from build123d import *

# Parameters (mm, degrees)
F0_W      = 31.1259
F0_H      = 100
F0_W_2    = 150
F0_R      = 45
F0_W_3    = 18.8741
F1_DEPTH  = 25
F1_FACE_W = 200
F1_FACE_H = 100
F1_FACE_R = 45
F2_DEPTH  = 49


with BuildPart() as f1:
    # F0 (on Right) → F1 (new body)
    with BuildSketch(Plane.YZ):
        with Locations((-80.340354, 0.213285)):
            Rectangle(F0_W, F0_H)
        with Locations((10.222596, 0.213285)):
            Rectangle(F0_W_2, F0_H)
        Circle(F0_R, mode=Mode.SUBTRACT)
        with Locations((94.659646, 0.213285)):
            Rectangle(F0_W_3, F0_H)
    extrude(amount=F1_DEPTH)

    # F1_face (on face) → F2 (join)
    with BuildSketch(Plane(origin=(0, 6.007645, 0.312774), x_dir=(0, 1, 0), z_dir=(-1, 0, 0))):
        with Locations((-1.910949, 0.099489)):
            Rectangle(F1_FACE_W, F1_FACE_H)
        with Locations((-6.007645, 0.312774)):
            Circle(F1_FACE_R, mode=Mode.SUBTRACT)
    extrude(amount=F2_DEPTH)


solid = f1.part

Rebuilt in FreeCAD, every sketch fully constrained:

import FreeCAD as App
import Part
import Sketcher
Q = App.Units.Quantity


def add_polygon(sketch, points):
    """Adds a closed chain of lines whose ends are joined by coincident constraints."""
    first, n = sketch.GeometryCount, len(points)
    for a, b in zip(points, points[1:] + points[:1]):
        sketch.addGeometry(Part.LineSegment(App.Vector(*a, 0), App.Vector(*b, 0)), False)
    for i in range(n):
        sketch.addConstraint(Sketcher.Constraint("Coincident", first + i, 2, first + (i + 1) % n, 1))

doc = App.newDocument("Part")
body = doc.addObject("PartDesign::Body", "Body")

sketch1 = body.newObject("Sketcher::SketchObject", "Sketch")
sketch1.AttachmentSupport = (doc.getObject("YZ_Plane"), [""])
sketch1.MapMode = "FlatFace"
add_polygon(sketch1, [(-96, 50), (-96, -50), (104, -50), (104, 50)])
sketch1.addGeometry(Part.Circle(App.Vector(0, 0, 0), App.Vector(0, 0, 1), 45), False)
sketch1.addConstraint([
    Sketcher.Constraint("Vertical", 0),
    Sketcher.Constraint("Horizontal", 1),
    Sketcher.Constraint("Vertical", 2),
    Sketcher.Constraint("Horizontal", 3),
    Sketcher.Constraint("Coincident", 4, 3, -1, 1),
    Sketcher.Constraint("Diameter", 4, Q("90 mm")),
    Sketcher.Constraint("DistanceX", 1, 1, 1, 2, Q("200 mm")),
    Sketcher.Constraint("DistanceY", 0, 2, 0, 1, Q("100 mm")),
    Sketcher.Constraint("DistanceX", 0, 2, -1, 1, Q("95.903304 mm")),
    Sketcher.Constraint("DistanceY", 0, 2, -1, 1, Q("49.786715 mm")),
])
pad1 = body.newObject("PartDesign::Pad", "Pad")
pad1.Profile = sketch1
pad1.Length = 25

sketch2 = body.newObject("Sketcher::SketchObject", "Sketch001")
sketch2.AttachmentSupport = (doc.getObject("YZ_Plane"), [""])
sketch2.MapMode = "FlatFace"
add_polygon(sketch2, [(-96, -50), (-96, 50), (104, 50), (104, -50)])
sketch2.addGeometry(Part.Circle(App.Vector(0, 0, 0), App.Vector(0, 0, 1), 45), False)
sketch2.addConstraint([
    Sketcher.Constraint("Vertical", 0),
    Sketcher.Constraint("Horizontal", 1),
    Sketcher.Constraint("Vertical", 2),
    Sketcher.Constraint("Horizontal", 3),
    Sketcher.Constraint("Coincident", 4, 3, -1, 1),
    Sketcher.Constraint("Diameter", 4, Q("90 mm")),
    Sketcher.Constraint("DistanceX", 1, 1, 1, 2, Q("200 mm")),
    Sketcher.Constraint("DistanceY", 0, 1, 0, 2, Q("100 mm")),
    Sketcher.Constraint("DistanceX", 0, 2, -1, 1, Q("95.903304 mm")),
    Sketcher.Constraint("DistanceY", -1, 1, 0, 2, Q("50.213285 mm")),
])
pad2 = body.newObject("PartDesign::Pad", "Pad001")
pad2.Profile = sketch2
pad2.Length = 49
pad2.Reversed = True

doc.recompute()
